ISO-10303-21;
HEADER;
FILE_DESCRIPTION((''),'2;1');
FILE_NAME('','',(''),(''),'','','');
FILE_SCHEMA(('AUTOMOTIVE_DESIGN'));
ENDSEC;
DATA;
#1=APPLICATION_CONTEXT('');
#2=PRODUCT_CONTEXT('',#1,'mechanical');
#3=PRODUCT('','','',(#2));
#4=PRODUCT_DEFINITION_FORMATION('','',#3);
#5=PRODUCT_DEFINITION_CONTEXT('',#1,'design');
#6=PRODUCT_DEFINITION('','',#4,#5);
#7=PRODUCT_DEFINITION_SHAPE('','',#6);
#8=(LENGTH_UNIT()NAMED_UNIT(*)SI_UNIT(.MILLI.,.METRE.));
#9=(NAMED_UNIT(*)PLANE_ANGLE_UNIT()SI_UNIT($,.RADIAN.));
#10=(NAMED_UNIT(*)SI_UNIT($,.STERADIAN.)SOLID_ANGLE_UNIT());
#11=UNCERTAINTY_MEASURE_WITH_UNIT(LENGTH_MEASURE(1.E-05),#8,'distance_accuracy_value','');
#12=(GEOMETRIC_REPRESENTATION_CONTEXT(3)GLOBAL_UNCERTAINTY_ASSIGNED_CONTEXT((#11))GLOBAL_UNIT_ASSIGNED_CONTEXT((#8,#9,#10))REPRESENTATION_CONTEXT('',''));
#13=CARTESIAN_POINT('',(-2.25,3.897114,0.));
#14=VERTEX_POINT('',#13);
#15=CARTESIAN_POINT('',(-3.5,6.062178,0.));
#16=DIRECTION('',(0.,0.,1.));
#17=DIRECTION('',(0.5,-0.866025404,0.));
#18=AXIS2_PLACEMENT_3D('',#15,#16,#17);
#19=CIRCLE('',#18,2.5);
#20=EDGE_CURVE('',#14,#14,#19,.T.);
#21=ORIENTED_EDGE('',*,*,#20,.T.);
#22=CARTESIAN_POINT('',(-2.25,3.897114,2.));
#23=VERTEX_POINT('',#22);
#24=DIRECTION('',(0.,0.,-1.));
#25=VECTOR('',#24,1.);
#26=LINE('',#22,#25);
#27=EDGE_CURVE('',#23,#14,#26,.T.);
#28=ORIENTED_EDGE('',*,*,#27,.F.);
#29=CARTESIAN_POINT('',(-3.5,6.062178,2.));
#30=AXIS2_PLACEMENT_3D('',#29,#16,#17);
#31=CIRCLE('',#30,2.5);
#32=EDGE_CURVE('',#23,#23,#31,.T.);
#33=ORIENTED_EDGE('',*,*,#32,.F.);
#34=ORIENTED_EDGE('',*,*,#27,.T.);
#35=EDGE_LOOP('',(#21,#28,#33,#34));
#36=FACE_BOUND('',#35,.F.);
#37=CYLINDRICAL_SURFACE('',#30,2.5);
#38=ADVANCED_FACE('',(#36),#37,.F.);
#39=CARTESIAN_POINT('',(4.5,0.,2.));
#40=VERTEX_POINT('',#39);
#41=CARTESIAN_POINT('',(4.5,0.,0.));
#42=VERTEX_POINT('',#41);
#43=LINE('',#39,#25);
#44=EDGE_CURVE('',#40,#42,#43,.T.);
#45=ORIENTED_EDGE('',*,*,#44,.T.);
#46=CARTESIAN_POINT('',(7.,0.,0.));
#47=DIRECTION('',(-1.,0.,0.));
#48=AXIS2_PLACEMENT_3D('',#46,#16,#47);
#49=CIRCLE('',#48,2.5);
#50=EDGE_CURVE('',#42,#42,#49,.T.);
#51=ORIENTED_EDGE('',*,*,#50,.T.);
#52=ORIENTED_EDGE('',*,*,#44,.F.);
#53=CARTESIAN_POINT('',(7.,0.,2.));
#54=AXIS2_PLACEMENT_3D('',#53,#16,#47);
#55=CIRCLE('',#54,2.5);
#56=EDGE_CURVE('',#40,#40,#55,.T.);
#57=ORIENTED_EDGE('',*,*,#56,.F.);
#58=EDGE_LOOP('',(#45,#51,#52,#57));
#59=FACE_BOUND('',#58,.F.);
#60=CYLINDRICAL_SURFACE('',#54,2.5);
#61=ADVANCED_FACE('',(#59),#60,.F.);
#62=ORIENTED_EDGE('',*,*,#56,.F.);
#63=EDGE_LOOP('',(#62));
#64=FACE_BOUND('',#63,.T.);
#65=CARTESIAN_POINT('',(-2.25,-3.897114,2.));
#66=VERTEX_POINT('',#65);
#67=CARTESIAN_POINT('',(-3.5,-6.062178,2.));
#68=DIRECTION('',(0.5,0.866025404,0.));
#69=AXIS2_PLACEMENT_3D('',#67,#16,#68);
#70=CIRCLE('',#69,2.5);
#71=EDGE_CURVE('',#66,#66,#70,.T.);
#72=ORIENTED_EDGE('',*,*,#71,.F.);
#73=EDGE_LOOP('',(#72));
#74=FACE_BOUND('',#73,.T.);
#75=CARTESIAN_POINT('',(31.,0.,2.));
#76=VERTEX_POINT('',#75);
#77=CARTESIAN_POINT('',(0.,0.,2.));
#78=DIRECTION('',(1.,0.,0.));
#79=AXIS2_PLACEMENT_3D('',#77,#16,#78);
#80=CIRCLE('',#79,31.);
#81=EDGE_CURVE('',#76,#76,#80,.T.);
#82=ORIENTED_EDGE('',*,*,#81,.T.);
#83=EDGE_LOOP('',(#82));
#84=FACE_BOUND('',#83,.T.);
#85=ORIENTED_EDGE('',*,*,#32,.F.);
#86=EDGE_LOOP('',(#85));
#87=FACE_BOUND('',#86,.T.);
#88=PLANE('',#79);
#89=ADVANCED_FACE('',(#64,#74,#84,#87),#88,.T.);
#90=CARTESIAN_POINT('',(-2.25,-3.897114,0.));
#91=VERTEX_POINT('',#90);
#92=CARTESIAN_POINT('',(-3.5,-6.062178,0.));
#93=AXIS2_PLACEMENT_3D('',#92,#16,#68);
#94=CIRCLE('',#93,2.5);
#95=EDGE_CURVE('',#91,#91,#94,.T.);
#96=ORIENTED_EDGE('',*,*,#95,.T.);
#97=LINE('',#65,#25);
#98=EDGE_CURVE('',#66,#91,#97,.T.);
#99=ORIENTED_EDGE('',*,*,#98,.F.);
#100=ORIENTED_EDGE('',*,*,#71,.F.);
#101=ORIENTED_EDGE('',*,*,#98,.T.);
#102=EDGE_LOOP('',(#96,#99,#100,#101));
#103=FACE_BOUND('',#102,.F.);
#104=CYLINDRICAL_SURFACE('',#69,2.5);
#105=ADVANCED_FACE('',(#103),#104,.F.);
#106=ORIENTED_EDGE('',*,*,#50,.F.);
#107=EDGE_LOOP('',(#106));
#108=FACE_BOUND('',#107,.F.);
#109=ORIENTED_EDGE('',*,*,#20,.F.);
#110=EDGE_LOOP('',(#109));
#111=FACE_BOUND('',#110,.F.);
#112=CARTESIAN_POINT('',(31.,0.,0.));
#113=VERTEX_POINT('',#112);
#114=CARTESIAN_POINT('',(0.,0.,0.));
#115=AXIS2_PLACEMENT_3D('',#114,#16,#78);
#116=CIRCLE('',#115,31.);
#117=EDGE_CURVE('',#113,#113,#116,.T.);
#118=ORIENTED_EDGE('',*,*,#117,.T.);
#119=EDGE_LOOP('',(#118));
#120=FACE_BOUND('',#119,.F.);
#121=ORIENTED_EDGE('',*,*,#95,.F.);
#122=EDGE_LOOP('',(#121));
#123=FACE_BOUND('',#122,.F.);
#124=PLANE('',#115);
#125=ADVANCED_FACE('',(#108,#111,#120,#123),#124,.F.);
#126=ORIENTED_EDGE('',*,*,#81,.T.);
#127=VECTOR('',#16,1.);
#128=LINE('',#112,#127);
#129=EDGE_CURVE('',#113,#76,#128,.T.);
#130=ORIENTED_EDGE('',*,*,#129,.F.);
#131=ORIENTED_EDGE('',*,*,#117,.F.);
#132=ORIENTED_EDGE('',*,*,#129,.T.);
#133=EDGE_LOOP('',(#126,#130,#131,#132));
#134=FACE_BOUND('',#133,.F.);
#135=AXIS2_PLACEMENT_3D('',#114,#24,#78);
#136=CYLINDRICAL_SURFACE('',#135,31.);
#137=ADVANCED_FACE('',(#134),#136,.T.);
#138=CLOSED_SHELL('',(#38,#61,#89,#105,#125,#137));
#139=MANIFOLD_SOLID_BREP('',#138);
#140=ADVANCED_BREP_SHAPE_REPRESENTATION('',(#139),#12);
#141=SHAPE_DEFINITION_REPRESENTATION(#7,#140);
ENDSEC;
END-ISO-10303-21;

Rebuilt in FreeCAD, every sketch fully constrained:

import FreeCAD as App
import Part
import Sketcher
from FreeCAD import Vector

doc = App.newDocument("Part")
body = doc.addObject("PartDesign::Body", "Body")

sketch1 = body.newObject("Sketcher::SketchObject", "Sketch")
sketch1.AttachmentSupport = (doc.getObject("XY_Plane"), [""])
sketch1.MapMode = "FlatFace"
sketch1.addGeometry(Part.Circle(Vector(0, 0, 0), Vector(0, 0, 1), 31), False)
sketch1.addConstraint(Sketcher.Constraint("Coincident", 0, 3, -1, 1))
sketch1.addConstraint(Sketcher.Constraint("Diameter", 0, 62.0))
pad1 = body.newObject("PartDesign::Pad", "Pad")
pad1.Profile = sketch1
pad1.Length = 2

sketch2 = body.newObject("Sketcher::SketchObject", "Sketch001")
sketch2.AttachmentSupport = (doc.getObject("XY_Plane"), [""])
sketch2.MapMode = "FlatFace"
sketch2.AttachmentOffset = App.Placement(Vector(0, 0, 2), App.Rotation())
sketch2.addGeometry(Part.Circle(Vector(7, 0, 0), Vector(0, 0, 1), 2.5), False)
sketch2.addConstraint(Sketcher.Constraint("PointOnObject", 0, 3, -1))
sketch2.addConstraint(Sketcher.Constraint("Diameter", 0, 5.0))
sketch2.addConstraint(Sketcher.Constraint("DistanceX", -1, 1, 0, 3, 7.0))
pocket1 = body.newObject("PartDesign::Pocket", "Pocket")
pocket1.Profile = sketch2
pocket1.Length = 10
doc.recompute()

polarpattern = body.newObject("PartDesign::PolarPattern", "PolarPattern")
polarpattern.Originals = [pocket1]
polarpattern.Axis = (doc.getObject("Z_Axis"), [""])
polarpattern.Angle = 360
polarpattern.Occurrences = 3
body.Tip = polarpattern

doc.recompute()
